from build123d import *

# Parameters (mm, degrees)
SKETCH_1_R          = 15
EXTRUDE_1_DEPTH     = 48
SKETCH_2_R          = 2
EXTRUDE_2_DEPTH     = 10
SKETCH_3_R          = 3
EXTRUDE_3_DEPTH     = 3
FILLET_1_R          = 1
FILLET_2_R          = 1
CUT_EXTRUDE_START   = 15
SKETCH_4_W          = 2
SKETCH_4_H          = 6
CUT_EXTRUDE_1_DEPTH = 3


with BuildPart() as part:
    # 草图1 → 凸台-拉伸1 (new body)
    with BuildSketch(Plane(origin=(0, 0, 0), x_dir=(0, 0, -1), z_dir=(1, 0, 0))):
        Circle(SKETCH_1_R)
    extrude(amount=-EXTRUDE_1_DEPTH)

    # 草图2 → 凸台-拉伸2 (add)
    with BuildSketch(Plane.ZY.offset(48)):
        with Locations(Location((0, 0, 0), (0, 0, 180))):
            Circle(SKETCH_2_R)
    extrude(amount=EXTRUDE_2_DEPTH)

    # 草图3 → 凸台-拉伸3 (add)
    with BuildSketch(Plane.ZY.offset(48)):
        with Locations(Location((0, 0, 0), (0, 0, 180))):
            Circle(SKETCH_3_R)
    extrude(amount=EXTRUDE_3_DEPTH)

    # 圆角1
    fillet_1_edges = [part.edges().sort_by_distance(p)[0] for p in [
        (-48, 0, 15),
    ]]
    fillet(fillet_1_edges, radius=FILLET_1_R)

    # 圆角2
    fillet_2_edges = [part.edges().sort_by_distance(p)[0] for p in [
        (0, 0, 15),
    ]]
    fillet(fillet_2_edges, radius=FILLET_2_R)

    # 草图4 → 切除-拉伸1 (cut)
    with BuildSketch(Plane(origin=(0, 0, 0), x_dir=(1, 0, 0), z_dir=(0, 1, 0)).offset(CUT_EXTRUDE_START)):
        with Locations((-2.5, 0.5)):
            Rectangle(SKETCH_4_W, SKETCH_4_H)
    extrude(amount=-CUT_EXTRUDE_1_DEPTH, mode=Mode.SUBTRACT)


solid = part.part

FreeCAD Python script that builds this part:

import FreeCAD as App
import Part
import Sketcher

V = App.Vector


def edges_at(feature, points):
    """Names of the edges that pass closest to the given points."""
    edges = feature.Shape.Edges
    near = lambda p: min(range(len(edges)), key=lambda i: edges[i].distToShape(Part.Vertex(*p))[0])
    return sorted({f"Edge{near(p) + 1}" for p in points})

doc = App.newDocument("Part")
body = doc.addObject("PartDesign::Body", "Body")

# Sketch on YZ plane
sketch1 = body.newObject("Sketcher::SketchObject", "Sketch")
sketch1.AttachmentSupport = (doc.getObject("YZ_Plane"), [""])
sketch1.MapMode = "FlatFace"
sketch1.addGeometry(Part.Circle(V(0, 0, 0), V(0, 0, 1), 15), False)
sketch1.addConstraint([
    Sketcher.Constraint("Coincident", 0, 3, -1, 1),
    Sketcher.Constraint("Diameter", 0, 30.0),
])
pad1 = body.newObject("PartDesign::Pad", "Pad")
pad1.Profile = sketch1
pad1.Length = 48
pad1.Reversed = True

# Sketch on YZ plane
sketch2 = body.newObject("Sketcher::SketchObject", "Sketch001")
sketch2.AttachmentSupport = (doc.getObject("YZ_Plane"), [""])
sketch2.MapMode = "FlatFace"
sketch2.AttachmentOffset = App.Placement(V(0, 0, -48), App.Rotation())
sketch2.addGeometry(Part.Circle(V(0, 0, 0), V(0, 0, 1), 2), False)
sketch2.addConstraint([
    Sketcher.Constraint("Coincident", 0, 3, -1, 1),
    Sketcher.Constraint("Diameter", 0, 4.0),
])
pad2 = body.newObject("PartDesign::Pad", "Pad001")
pad2.Profile = sketch2
pad2.Length = 10
pad2.Reversed = True

# Sketch on YZ plane
sketch3 = body.newObject("Sketcher::SketchObject", "Sketch002")
sketch3.AttachmentSupport = (doc.getObject("YZ_Plane"), [""])
sketch3.MapMode = "FlatFace"
sketch3.AttachmentOffset = App.Placement(V(0, 0, -48), App.Rotation())
sketch3.addGeometry(Part.Circle(V(0, 0, 0), V(0, 0, 1), 3), False)
sketch3.addConstraint([
    Sketcher.Constraint("Coincident", 0, 3, -1, 1),
    Sketcher.Constraint("Diameter", 0, 6.0),
])
pad3 = body.newObject("PartDesign::Pad", "Pad002")
pad3.Profile = sketch3
pad3.Length = 3
pad3.Reversed = True
doc.recompute()

fillet = body.newObject("PartDesign::Fillet", "Fillet")
fillet.Base = (pad3, edges_at(pad3, [(-48, 0, 15)]))
fillet.Radius = 1
doc.recompute()

fillet2 = body.newObject("PartDesign::Fillet", "Fillet001")
fillet2.Base = (fillet, edges_at(fillet, [(0, 0, 15)]))
fillet2.Radius = 1

# Sketch on XZ plane
sketch4 = body.newObject("Sketcher::SketchObject", "Sketch003")
sketch4.AttachmentSupport = (doc.getObject("XZ_Plane"), [""])
sketch4.MapMode = "FlatFace"
sketch4.AttachmentOffset = App.Placement(V(0, 0, -15), App.Rotation())
sketch4.addGeometry([
    Part.LineSegment(V(-3.5, -3.5, 0), V(-3.5, 2.5, 0)),
    Part.LineSegment(V(-3.5, 2.5, 0), V(-1.5, 2.5, 0)),
    Part.LineSegment(V(-1.5, 2.5, 0), V(-1.5, -3.5, 0)),
    Part.LineSegment(V(-1.5, -3.5, 0), V(-3.5, -3.5, 0)),
], False)
sketch4.addConstraint([
    Sketcher.Constraint("Coincident", 0, 2, 1, 1),
    Sketcher.Constraint("Coincident", 1, 2, 2, 1),
    Sketcher.Constraint("Coincident", 2, 2, 3, 1),
    Sketcher.Constraint("Coincident", 3, 2, 0, 1),
    Sketcher.Constraint("Vertical", 0),
    Sketcher.Constraint("Horizontal", 1),
    Sketcher.Constraint("Vertical", 2),
    Sketcher.Constraint("Horizontal", 3),
    Sketcher.Constraint("DistanceX", 1, 1, 1, 2, 2.0),
    Sketcher.Constraint("DistanceY", 0, 1, 0, 2, 6.0),
    Sketcher.Constraint("DistanceX", 0, 2, -1, 1, 3.5),
    Sketcher.Constraint("DistanceY", -1, 1, 0, 2, 2.5),
])
pocket1 = body.newObject("PartDesign::Pocket", "Pocket")
pocket1.Profile = sketch4
pocket1.Length = 3
pocket1.Reversed = True

doc.recompute()
